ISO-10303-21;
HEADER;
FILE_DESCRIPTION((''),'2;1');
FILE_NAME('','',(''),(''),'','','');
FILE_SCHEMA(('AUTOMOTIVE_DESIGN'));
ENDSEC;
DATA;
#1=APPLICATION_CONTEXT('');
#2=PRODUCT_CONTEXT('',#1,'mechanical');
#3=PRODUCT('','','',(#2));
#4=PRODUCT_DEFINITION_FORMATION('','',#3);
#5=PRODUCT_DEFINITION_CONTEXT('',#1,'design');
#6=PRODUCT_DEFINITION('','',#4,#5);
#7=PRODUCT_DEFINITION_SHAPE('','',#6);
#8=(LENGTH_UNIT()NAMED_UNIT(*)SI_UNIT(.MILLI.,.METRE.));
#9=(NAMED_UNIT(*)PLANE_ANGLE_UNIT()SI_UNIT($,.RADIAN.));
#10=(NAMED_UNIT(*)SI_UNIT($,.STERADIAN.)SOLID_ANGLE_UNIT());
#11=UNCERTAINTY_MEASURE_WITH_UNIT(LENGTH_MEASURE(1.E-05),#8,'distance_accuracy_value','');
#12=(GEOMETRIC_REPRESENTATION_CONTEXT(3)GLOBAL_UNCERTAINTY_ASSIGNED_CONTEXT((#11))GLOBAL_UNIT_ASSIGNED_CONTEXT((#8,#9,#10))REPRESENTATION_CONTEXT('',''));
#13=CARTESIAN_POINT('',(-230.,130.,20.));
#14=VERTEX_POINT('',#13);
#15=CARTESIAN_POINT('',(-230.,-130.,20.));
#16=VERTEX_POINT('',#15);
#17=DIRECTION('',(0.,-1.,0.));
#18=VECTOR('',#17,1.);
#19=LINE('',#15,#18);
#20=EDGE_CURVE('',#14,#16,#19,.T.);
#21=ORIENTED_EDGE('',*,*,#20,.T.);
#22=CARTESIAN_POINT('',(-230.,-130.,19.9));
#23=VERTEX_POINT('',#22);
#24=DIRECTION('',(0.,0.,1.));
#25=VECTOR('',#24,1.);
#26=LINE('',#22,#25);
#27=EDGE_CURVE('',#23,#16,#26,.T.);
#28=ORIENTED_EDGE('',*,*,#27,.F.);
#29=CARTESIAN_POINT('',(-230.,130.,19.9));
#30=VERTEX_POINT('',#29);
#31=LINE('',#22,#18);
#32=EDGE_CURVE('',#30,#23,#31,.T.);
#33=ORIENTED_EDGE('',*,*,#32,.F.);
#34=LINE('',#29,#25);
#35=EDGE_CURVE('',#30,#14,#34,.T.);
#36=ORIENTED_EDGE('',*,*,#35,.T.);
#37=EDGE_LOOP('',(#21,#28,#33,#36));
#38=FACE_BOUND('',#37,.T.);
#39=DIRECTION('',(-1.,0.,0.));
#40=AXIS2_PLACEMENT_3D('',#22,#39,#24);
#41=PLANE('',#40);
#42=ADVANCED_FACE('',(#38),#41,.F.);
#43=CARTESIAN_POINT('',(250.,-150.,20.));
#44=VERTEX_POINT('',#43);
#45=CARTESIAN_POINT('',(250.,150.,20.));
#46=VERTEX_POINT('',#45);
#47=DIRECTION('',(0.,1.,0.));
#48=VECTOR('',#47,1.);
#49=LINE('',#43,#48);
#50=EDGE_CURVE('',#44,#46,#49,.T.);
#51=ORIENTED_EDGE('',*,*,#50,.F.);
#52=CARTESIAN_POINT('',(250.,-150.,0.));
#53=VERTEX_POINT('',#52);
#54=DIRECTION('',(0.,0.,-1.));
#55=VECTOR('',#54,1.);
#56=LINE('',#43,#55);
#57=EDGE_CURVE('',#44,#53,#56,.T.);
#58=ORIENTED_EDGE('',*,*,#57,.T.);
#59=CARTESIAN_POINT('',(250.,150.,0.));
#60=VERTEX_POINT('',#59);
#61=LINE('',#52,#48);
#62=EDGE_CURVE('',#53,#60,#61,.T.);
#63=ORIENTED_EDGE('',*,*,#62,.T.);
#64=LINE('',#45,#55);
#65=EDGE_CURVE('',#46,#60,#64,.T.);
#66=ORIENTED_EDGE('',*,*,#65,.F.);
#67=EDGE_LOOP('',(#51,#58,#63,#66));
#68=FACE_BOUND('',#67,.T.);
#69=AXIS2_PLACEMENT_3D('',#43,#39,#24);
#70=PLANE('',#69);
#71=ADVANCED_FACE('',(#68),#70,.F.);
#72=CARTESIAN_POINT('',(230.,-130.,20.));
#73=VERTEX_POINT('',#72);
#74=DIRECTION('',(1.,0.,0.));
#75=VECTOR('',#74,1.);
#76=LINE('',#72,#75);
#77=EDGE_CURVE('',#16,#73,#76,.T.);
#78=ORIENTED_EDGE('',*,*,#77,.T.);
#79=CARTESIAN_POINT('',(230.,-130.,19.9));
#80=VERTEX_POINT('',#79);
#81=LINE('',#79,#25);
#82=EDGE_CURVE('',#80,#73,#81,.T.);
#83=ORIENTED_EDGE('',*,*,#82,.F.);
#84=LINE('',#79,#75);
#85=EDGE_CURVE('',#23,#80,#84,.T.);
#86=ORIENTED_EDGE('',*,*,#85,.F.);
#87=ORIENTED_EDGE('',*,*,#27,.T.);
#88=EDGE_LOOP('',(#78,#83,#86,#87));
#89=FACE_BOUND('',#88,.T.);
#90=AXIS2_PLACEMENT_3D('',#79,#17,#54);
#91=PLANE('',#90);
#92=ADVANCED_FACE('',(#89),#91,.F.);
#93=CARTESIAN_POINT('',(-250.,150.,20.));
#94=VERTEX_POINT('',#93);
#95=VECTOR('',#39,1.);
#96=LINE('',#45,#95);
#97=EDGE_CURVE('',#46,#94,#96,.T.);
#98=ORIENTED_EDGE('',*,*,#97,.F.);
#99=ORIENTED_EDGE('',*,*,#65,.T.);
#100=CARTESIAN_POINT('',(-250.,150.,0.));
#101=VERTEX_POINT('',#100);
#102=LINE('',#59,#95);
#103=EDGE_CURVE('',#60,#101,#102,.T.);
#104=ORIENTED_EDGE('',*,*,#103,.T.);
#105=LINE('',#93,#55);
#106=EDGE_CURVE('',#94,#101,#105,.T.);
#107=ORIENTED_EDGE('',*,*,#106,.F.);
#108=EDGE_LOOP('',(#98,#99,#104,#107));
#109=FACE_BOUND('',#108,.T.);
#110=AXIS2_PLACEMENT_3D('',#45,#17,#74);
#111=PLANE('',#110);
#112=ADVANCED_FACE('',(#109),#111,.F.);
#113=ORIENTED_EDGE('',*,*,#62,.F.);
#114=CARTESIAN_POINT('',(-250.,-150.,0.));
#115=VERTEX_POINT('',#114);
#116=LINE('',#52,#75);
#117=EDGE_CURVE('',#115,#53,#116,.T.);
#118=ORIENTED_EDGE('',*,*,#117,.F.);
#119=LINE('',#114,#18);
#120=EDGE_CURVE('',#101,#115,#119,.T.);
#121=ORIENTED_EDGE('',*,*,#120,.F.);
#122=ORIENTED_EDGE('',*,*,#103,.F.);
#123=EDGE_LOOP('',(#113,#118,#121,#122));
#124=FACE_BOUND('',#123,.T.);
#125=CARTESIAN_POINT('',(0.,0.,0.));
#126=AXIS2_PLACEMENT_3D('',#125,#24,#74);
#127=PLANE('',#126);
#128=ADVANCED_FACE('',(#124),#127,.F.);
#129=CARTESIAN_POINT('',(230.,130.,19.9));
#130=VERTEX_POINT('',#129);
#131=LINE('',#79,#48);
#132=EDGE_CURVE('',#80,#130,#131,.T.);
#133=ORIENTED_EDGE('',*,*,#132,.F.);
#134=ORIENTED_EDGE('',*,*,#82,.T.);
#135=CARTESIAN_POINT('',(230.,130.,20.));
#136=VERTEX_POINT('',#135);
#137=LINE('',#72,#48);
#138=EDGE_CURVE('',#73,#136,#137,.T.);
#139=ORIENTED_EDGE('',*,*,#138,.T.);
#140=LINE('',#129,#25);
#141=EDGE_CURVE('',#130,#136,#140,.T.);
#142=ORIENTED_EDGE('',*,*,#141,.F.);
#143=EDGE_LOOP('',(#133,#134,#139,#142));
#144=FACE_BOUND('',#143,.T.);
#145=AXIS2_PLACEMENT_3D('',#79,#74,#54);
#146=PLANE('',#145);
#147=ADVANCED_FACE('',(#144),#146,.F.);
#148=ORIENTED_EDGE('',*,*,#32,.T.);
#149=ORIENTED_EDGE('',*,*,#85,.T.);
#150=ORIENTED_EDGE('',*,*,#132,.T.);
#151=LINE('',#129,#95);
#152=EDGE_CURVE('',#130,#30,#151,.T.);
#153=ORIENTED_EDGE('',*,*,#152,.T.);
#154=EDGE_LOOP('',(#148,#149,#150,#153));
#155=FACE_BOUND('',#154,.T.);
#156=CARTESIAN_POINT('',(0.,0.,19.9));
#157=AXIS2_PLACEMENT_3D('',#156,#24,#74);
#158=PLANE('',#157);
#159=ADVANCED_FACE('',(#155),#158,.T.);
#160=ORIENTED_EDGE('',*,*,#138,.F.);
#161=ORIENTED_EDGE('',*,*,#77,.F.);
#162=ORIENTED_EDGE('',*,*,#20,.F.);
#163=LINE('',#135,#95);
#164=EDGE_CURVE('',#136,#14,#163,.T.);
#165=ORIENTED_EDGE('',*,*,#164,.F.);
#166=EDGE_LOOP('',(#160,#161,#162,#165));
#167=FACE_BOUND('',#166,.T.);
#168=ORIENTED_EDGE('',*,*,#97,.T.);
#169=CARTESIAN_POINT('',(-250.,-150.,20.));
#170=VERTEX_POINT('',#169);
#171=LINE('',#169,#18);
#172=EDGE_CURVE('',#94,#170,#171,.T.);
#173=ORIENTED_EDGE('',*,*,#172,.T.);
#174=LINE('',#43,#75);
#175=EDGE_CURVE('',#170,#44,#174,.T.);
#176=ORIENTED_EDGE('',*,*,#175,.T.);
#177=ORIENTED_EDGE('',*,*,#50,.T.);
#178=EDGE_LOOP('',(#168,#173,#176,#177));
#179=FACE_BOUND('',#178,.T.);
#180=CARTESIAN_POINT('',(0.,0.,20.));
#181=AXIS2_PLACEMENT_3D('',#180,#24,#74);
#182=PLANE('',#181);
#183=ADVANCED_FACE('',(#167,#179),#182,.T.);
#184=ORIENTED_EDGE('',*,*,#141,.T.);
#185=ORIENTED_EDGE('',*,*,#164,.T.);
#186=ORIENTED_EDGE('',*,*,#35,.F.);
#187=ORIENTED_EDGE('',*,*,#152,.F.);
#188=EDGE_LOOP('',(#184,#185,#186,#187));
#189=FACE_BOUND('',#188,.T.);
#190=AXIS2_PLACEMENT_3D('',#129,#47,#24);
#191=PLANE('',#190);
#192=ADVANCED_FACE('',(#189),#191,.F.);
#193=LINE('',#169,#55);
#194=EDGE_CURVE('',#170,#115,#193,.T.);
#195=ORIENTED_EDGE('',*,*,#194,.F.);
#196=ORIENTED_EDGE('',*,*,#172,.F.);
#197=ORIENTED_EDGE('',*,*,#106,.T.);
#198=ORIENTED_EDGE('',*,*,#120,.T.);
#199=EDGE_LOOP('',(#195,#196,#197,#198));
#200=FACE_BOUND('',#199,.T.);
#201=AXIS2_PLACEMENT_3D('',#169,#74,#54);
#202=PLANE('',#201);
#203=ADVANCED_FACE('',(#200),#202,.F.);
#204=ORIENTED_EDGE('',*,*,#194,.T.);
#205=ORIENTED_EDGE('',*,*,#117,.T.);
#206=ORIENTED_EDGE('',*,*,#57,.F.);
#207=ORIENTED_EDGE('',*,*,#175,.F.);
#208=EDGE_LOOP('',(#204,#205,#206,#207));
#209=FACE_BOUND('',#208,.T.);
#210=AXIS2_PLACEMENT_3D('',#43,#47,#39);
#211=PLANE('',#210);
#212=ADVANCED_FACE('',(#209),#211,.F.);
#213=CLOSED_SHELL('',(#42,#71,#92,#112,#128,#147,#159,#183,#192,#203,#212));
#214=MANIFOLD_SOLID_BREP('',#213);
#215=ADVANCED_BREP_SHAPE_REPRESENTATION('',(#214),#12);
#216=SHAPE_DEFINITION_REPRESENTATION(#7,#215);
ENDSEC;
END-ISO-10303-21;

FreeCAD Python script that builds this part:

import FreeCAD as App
import Part
import Sketcher


def add_polygon(sketch, points):
    """Adds a closed chain of lines whose ends are joined by coincident constraints."""
    first, n = sketch.GeometryCount, len(points)
    for a, b in zip(points, points[1:] + points[:1]):
        sketch.addGeometry(Part.LineSegment(App.Vector(*a, 0), App.Vector(*b, 0)), False)
    for i in range(n):
        sketch.addConstraint(Sketcher.Constraint("Coincident", first + i, 2, first + (i + 1) % n, 1))

doc = App.newDocument("Part")
body = doc.addObject("PartDesign::Body", "Body")

# Sketch on XY plane
sketch1 = body.newObject("Sketcher::SketchObject", "Sketch")
sketch1.AttachmentSupport = (doc.getObject("XY_Plane"), [""])
sketch1.MapMode = "FlatFace"
add_polygon(sketch1, [(-250, 150), (-250, -150), (250, -150), (250, 150)])  # lines 0-3
sketch1.addConstraint([
    Sketcher.Constraint("Vertical", 0),
    Sketcher.Constraint("Horizontal", 1),
    Sketcher.Constraint("Vertical", 2),
    Sketcher.Constraint("Horizontal", 3),
    Sketcher.Constraint("Symmetric", 0, 2, 2, 2, -1, 1),
    Sketcher.Constraint("DistanceX", 1, 1, 1, 2, 500.0),
    Sketcher.Constraint("DistanceY", 0, 2, 0, 1, 300.0),
])
pad1 = body.newObject("PartDesign::Pad", "Pad")
pad1.Profile = sketch1
pad1.Length = 20

# Sketch on XY plane
sketch2 = body.newObject("Sketcher::SketchObject", "Sketch001")
sketch2.AttachmentSupport = (doc.getObject("XY_Plane"), [""])
sketch2.MapMode = "FlatFace"
sketch2.AttachmentOffset = App.Placement(App.Vector(0, 0, 20), App.Rotation())
add_polygon(sketch2, [(-230, 130), (-230, -130), (230, -130), (230, 130)])  # lines 0-3
sketch2.addConstraint([
    Sketcher.Constraint("Vertical", 0),
    Sketcher.Constraint("Horizontal", 1),
    Sketcher.Constraint("Vertical", 2),
    Sketcher.Constraint("Horizontal", 3),
    Sketcher.Constraint("Symmetric", 0, 2, 2, 2, -1, 1),
    Sketcher.Constraint("DistanceX", 1, 1, 1, 2, 460.0),
    Sketcher.Constraint("DistanceY", 0, 2, 0, 1, 260.0),
])
pocket1 = body.newObject("PartDesign::Pocket", "Pocket")
pocket1.Profile = sketch2
pocket1.Length = 0.1

doc.recompute()
